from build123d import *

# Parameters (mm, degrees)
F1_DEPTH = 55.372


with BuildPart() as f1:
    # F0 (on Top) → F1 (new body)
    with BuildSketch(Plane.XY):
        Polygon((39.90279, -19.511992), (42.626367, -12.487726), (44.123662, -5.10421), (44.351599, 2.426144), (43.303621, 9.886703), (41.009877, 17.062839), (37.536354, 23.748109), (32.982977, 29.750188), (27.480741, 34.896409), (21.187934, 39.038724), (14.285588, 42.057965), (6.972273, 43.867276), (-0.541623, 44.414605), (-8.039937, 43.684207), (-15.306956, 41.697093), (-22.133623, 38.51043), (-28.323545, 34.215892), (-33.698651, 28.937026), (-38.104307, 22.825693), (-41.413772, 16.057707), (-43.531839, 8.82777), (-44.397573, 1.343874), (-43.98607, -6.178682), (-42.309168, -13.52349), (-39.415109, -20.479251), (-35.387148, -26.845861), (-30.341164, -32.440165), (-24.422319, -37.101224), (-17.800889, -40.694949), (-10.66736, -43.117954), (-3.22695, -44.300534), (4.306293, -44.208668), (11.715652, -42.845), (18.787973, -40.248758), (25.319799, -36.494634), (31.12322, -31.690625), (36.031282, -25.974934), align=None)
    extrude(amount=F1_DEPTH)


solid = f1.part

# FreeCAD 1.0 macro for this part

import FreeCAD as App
import Part
import Sketcher

V = App.Vector
Q = App.Units.Quantity

doc = App.newDocument("Part")
body = doc.addObject("PartDesign::Body", "Body")

# Sketch on XY plane
sketch1 = body.newObject("Sketcher::SketchObject", "Sketch")
sketch1.AttachmentSupport = (doc.getObject("XY_Plane"), [""])
sketch1.MapMode = "FlatFace"
sketch1.addGeometry([
    Part.LineSegment(V(39.90279, -19.511992, 0), V(42.626367, -12.487726, 0)),  # 0
    Part.LineSegment(V(42.626367, -12.487726, 0), V(44.123662, -5.10421, 0)),  # 1
    Part.LineSegment(V(44.123662, -5.10421, 0), V(44.351599, 2.426144, 0)),  # 2
    Part.LineSegment(V(44.351599, 2.426144, 0), V(43.303621, 9.886703, 0)),  # 3
    Part.LineSegment(V(43.303621, 9.886703, 0), V(41.009877, 17.062839, 0)),  # 4
    Part.LineSegment(V(41.009877, 17.062839, 0), V(37.536354, 23.748109, 0)),  # 5
    Part.LineSegment(V(37.536354, 23.748109, 0), V(32.982977, 29.750188, 0)),  # 6
    Part.LineSegment(V(32.982977, 29.750188, 0), V(27.480741, 34.896409, 0)),  # 7
    Part.LineSegment(V(27.480741, 34.896409, 0), V(21.187934, 39.038724, 0)),  # 8
    Part.LineSegment(V(21.187934, 39.038724, 0), V(14.285588, 42.057965, 0)),  # 9
    Part.LineSegment(V(14.285588, 42.057965, 0), V(6.972273, 43.867276, 0)),  # 10
    Part.LineSegment(V(6.972273, 43.867276, 0), V(-0.541623, 44.414605, 0)),  # 11
    Part.LineSegment(V(-0.541623, 44.414605, 0), V(-8.039937, 43.684207, 0)),  # 12
    Part.LineSegment(V(-8.039937, 43.684207, 0), V(-15.306956, 41.697093, 0)),  # 13
    Part.LineSegment(V(-15.306956, 41.697093, 0), V(-22.133623, 38.51043, 0)),  # 14
    Part.LineSegment(V(-22.133623, 38.51043, 0), V(-28.323545, 34.215892, 0)),  # 15
    Part.LineSegment(V(-28.323545, 34.215892, 0), V(-33.698651, 28.937026, 0)),  # 16
    Part.LineSegment(V(-33.698651, 28.937026, 0), V(-38.104307, 22.825693, 0)),  # 17
    Part.LineSegment(V(-38.104307, 22.825693, 0), V(-41.413772, 16.057707, 0)),  # 18
    Part.LineSegment(V(-41.413772, 16.057707, 0), V(-43.531839, 8.82777, 0)),  # 19
    Part.LineSegment(V(-43.531839, 8.82777, 0), V(-44.397573, 1.343874, 0)),  # 20
    Part.LineSegment(V(-44.397573, 1.343874, 0), V(-43.98607, -6.178682, 0)),  # 21
    Part.LineSegment(V(-43.98607, -6.178682, 0), V(-42.309168, -13.52349, 0)),  # 22
    Part.LineSegment(V(-42.309168, -13.52349, 0), V(-39.415109, -20.479251, 0)),  # 23
    Part.LineSegment(V(-39.415109, -20.479251, 0), V(-35.387148, -26.845861, 0)),  # 24
    Part.LineSegment(V(-35.387148, -26.845861, 0), V(-30.341164, -32.440165, 0)),  # 25
    Part.LineSegment(V(-30.341164, -32.440165, 0), V(-24.422319, -37.101224, 0)),  # 26
    Part.LineSegment(V(-24.422319, -37.101224, 0), V(-17.800889, -40.694949, 0)),  # 27
    Part.LineSegment(V(-17.800889, -40.694949, 0), V(-10.66736, -43.117954, 0)),  # 28
    Part.LineSegment(V(-10.66736, -43.117954, 0), V(-3.22695, -44.300534, 0)),  # 29
    Part.LineSegment(V(-3.22695, -44.300534, 0), V(4.306293, -44.208668, 0)),  # 30
    Part.LineSegment(V(4.306293, -44.208668, 0), V(11.715652, -42.845, 0)),  # 31
    Part.LineSegment(V(11.715652, -42.845, 0), V(18.787973, -40.248758, 0)),  # 32
    Part.LineSegment(V(18.787973, -40.248758, 0), V(25.319799, -36.494634, 0)),  # 33
    Part.LineSegment(V(25.319799, -36.494634, 0), V(31.12322, -31.690625, 0)),  # 34
    Part.LineSegment(V(31.12322, -31.690625, 0), V(36.031282, -25.974934, 0)),  # 35
    Part.LineSegment(V(36.031282, -25.974934, 0), V(39.90279, -19.511992, 0)),  # 36
], False)
sketch1.addConstraint([
    Sketcher.Constraint("Coincident", 0, 2, 1, 1),
    Sketcher.Constraint("Coincident", 1, 2, 2, 1),
    Sketcher.Constraint("Coincident", 2, 2, 3, 1),
    Sketcher.Constraint("Coincident", 3, 2, 4, 1),
    Sketcher.Constraint("Coincident", 4, 2, 5, 1),
    Sketcher.Constraint("Coincident", 5, 2, 6, 1),
    Sketcher.Constraint("Coincident", 6, 2, 7, 1),
    Sketcher.Constraint("Coincident", 7, 2, 8, 1),
    Sketcher.Constraint("Coincident", 8, 2, 9, 1),
    Sketcher.Constraint("Coincident", 9, 2, 10, 1),
    Sketcher.Constraint("Coincident", 10, 2, 11, 1),
    Sketcher.Constraint("Coincident", 11, 2, 12, 1),
    Sketcher.Constraint("Coincident", 12, 2, 13, 1),
    Sketcher.Constraint("Coincident", 13, 2, 14, 1),
    Sketcher.Constraint("Coincident", 14, 2, 15, 1),
    Sketcher.Constraint("Coincident", 15, 2, 16, 1),
    Sketcher.Constraint("Coincident", 16, 2, 17, 1),
    Sketcher.Constraint("Coincident", 17, 2, 18, 1),
    Sketcher.Constraint("Coincident", 18, 2, 19, 1),
    Sketcher.Constraint("Coincident", 19, 2, 20, 1),
    Sketcher.Constraint("Coincident", 20, 2, 21, 1),
    Sketcher.Constraint("Coincident", 21, 2, 22, 1),
    Sketcher.Constraint("Coincident", 22, 2, 23, 1),
    Sketcher.Constraint("Coincident", 23, 2, 24, 1),
    Sketcher.Constraint("Coincident", 24, 2, 25, 1),
    Sketcher.Constraint("Coincident", 25, 2, 26, 1),
    Sketcher.Constraint("Coincident", 26, 2, 27, 1),
    Sketcher.Constraint("Coincident", 27, 2, 28, 1),
    Sketcher.Constraint("Coincident", 28, 2, 29, 1),
    Sketcher.Constraint("Coincident", 29, 2, 30, 1),
    Sketcher.Constraint("Coincident", 30, 2, 31, 1),
    Sketcher.Constraint("Coincident", 31, 2, 32, 1),
    Sketcher.Constraint("Coincident", 32, 2, 33, 1),
    Sketcher.Constraint("Coincident", 33, 2, 34, 1),
    Sketcher.Constraint("Coincident", 34, 2, 35, 1),
    Sketcher.Constraint("Coincident", 35, 2, 36, 1),
    Sketcher.Constraint("Coincident", 36, 2, 0, 1),
    Sketcher.Constraint("DistanceX", 15, 2, -1, 1, Q("1.1151002 in")),
    Sketcher.Constraint("DistanceY", 32, 2, 33, 2, Q("0.1478002 in")),
    Sketcher.Constraint("DistanceX", -1, 1, 2, 2, Q("44.351599 mm")),
    Sketcher.Constraint("DistanceY", 31, 2, -1, 1, Q("42.845 mm")),
    Sketcher.Constraint("DistanceX", -1, 1, 33, 2, Q("25.319799 mm")),
    Sketcher.Constraint("DistanceX", 6, 2, 4, 2, Q("8.0269 mm")),
    Sketcher.Constraint("DistanceY", 1, 2, 6, 2, Q("34.854398 mm")),
    Sketcher.Constraint("DistanceY", 5, 2, 7, 2, Q("11.1483 mm")),
    Sketcher.Constraint("DistanceX", 11, 2, 6, 2, Q("33.5246 mm")),
    Sketcher.Constraint("DistanceY", 12, 2, 11, 2, Q("0.730398 mm")),
    Sketcher.Constraint("DistanceY", 7, 2, 12, 2, Q("8.787798 mm")),
    Sketcher.Constraint("DistanceX", 14, 2, 11, 2, Q("21.592 mm")),
    Sketcher.Constraint("DistanceY", 15, 2, 13, 2, Q("7.481201 mm")),
    Sketcher.Constraint("DistanceY", 17, 2, 15, 2, Q("11.390199 mm")),
    Sketcher.Constraint("DistanceX", 20, 2, 18, 2, Q("2.983801 mm")),
    Sketcher.Constraint("DistanceX", 21, 2, 22, 2, Q("1.676902 mm")),
    Sketcher.Constraint("DistanceY", 27, 2, 23, 2, Q("20.215698 mm")),
    Sketcher.Constraint("DistanceY", 29, 2, 33, 2, Q("7.8059 mm")),
    Sketcher.Constraint("DistanceY", 34, 2, 0, 2, Q("19.202899 mm")),
    Sketcher.Constraint("DistanceY", 33, 2, 35, 2, Q("10.5197 mm")),
    Sketcher.Constraint("DistanceY", 1, 2, -1, 1, Q("5.10421 mm")),
    Sketcher.Constraint("DistanceX", -1, 1, 3, 2, Q("43.303621 mm")),
    Sketcher.Constraint("DistanceY", -1, 1, 4, 2, Q("17.062839 mm")),
    Sketcher.Constraint("DistanceY", -1, 1, 5, 2, Q("23.748109 mm")),
    Sketcher.Constraint("DistanceX", -1, 1, 7, 2, Q("27.480741 mm")),
    Sketcher.Constraint("DistanceX", -1, 1, 9, 2, Q("14.285588 mm")),
    Sketcher.Constraint("DistanceY", -1, 1, 14, 2, Q("38.51043 mm")),
    Sketcher.Constraint("DistanceY", -1, 1, 15, 2, Q("34.215892 mm")),
    Sketcher.Constraint("DistanceX", 16, 2, -1, 1, Q("33.698651 mm")),
    Sketcher.Constraint("DistanceX", 19, 2, -1, 1, Q("43.531839 mm")),
    Sketcher.Constraint("DistanceY", -1, 1, 19, 2, Q("8.82777 mm")),
    Sketcher.Constraint("DistanceX", 21, 2, -1, 1, Q("43.98607 mm")),
    Sketcher.Constraint("DistanceY", 22, 2, -1, 1, Q("13.52349 mm")),
    Sketcher.Constraint("DistanceX", 23, 2, -1, 1, Q("39.415109 mm")),
    Sketcher.Constraint("DistanceY", 23, 2, -1, 1, Q("20.479251 mm")),
    Sketcher.Constraint("DistanceX", 24, 2, -1, 1, Q("35.387148 mm")),
    Sketcher.Constraint("DistanceY", 24, 2, -1, 1, Q("26.845861 mm")),
    Sketcher.Constraint("DistanceX", 26, 2, -1, 1, Q("24.422319 mm")),
    Sketcher.Constraint("DistanceX", 27, 2, -1, 1, Q("17.800889 mm")),
    Sketcher.Constraint("DistanceX", 28, 2, -1, 1, Q("10.66736 mm")),
    Sketcher.Constraint("DistanceX", 29, 2, -1, 1, Q("3.22695 mm")),
    Sketcher.Constraint("DistanceY", 30, 2, -1, 1, Q("44.208668 mm")),
    Sketcher.Constraint("DistanceY", 32, 2, -1, 1, Q("40.248758 mm")),
    Sketcher.Constraint("DistanceX", -1, 1, 34, 2, Q("31.12322 mm")),
    Sketcher.Constraint("DistanceX", -1, 1, 35, 2, Q("36.031282 mm")),
    Sketcher.Constraint("DistanceX", -1, 1, 36, 2, Q("39.90279 mm")),
    Sketcher.Constraint("DistanceY", 36, 2, -1, 1, Q("19.511992 mm")),
    Sketcher.Constraint("DistanceX", 0, 2, 2, 2, Q("1.725232 mm")),
    Sketcher.Constraint("DistanceY", 0, 2, 2, 2, Q("14.91387 mm")),
    Sketcher.Constraint("DistanceY", 2, 2, 3, 2, Q("7.460559 mm")),
    Sketcher.Constraint("DistanceX", 3, 2, 1, 2, Q("0.820041 mm")),
    Sketcher.Constraint("DistanceX", 4, 2, 2, 2, Q("3.341722 mm")),
    Sketcher.Constraint("DistanceX", 8, 2, 5, 2, Q("16.34842 mm")),
    Sketcher.Constraint("DistanceY", 3, 2, 8, 2, Q("29.152021 mm")),
    Sketcher.Constraint("DistanceY", 8, 2, 9, 2, Q("3.019241 mm")),
    Sketcher.Constraint("DistanceY", 9, 2, 10, 2, Q("1.809311 mm")),
    Sketcher.Constraint("DistanceX", 10, 2, 8, 2, Q("14.215661 mm")),
    Sketcher.Constraint("DistanceY", 10, 2, 11, 2, Q("0.547329 mm")),
    Sketcher.Constraint("DistanceX", 12, 2, 10, 2, Q("15.01221 mm")),
    Sketcher.Constraint("DistanceX", 13, 2, 12, 2, Q("7.267019 mm")),
    Sketcher.Constraint("DistanceX", 15, 2, 13, 2, Q("13.016589 mm")),
    Sketcher.Constraint("DistanceY", 16, 2, 12, 2, Q("14.747181 mm")),
    Sketcher.Constraint("DistanceX", 17, 2, 15, 2, Q("9.780762 mm")),
    Sketcher.Constraint("DistanceX", 18, 2, 16, 2, Q("7.715121 mm")),
    Sketcher.Constraint("DistanceY", 18, 2, 16, 2, Q("12.879319 mm")),
    Sketcher.Constraint("DistanceY", 20, 2, 17, 2, Q("21.481819 mm")),
    Sketcher.Constraint("DistanceY", 21, 2, 18, 2, Q("22.236389 mm")),
    Sketcher.Constraint("DistanceX", 20, 2, 25, 2, Q("14.056409 mm")),
    Sketcher.Constraint("DistanceY", 25, 2, 20, 2, Q("33.784039 mm")),
    Sketcher.Constraint("DistanceY", 26, 2, 25, 2, Q("4.661059 mm")),
    Sketcher.Constraint("DistanceY", 28, 2, 26, 2, Q("6.01673 mm")),
    Sketcher.Constraint("DistanceX", 30, 2, 31, 2, Q("7.409359 mm")),
    Sketcher.Constraint("DistanceX", 27, 2, 31, 2, Q("29.516541 mm")),
    Sketcher.Constraint("DistanceX", 31, 2, 32, 2, Q("7.072321 mm")),
])
pad1 = body.newObject("PartDesign::Pad", "Pad")
pad1.Profile = sketch1
pad1.Length = Q("2.18 in")

doc.recompute()
